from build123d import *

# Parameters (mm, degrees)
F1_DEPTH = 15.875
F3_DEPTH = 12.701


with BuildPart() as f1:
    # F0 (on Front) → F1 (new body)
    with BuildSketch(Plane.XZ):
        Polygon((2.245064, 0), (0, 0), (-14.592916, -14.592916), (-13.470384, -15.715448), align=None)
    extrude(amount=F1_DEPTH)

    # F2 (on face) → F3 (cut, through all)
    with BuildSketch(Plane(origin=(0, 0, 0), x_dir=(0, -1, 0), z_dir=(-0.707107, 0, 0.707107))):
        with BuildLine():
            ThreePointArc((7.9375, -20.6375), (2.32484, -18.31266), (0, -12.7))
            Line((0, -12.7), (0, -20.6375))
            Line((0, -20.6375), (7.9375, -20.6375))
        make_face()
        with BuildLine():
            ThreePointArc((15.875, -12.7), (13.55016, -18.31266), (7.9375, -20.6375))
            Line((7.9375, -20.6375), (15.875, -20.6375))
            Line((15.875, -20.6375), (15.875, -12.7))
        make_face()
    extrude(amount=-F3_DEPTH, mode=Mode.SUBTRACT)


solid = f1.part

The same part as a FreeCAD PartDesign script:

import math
import FreeCAD as App
import Part
import Sketcher
from FreeCAD import Vector
Q = App.Units.Quantity

doc = App.newDocument("Part")
body = doc.addObject("PartDesign::Body", "Body")

sketch1 = body.newObject("Sketcher::SketchObject", "Sketch")
sketch1.AttachmentSupport = (doc.getObject("XZ_Plane"), [""])
sketch1.MapMode = "FlatFace"
sketch1.addGeometry([
    Part.LineSegment(Vector(2.2, 0, 0), Vector(0, 0, 0)),
    Part.LineSegment(Vector(0, 0, 0), Vector(-14.6, -14.6, 0)),
    Part.LineSegment(Vector(-14.6, -14.6, 0), Vector(-13.5, -15.7, 0)),
    Part.LineSegment(Vector(-13.5, -15.7, 0), Vector(2.2, 0, 0)),
], False)
sketch1.addConstraint([
    Sketcher.Constraint("Coincident", 0, 2, 1, 1),
    Sketcher.Constraint("Coincident", 1, 2, 2, 1),
    Sketcher.Constraint("Coincident", 2, 2, 3, 1),
    Sketcher.Constraint("Coincident", 3, 2, 0, 1),
    Sketcher.Constraint("Horizontal", 0),
    Sketcher.Constraint("Coincident", 0, 2, -1, 1),
    Sketcher.Constraint("Perpendicular", 1, 2),
    Sketcher.Constraint("Perpendicular", 2, 3),
    Sketcher.Constraint("Angle", 1, Q("-135 deg")),
    Sketcher.Constraint("Distance", 1, Q("0.8125 in")),
    Sketcher.Constraint("Distance", 2, Q("0.0625 in")),
])
pad1 = body.newObject("PartDesign::Pad", "Pad")
pad1.Profile = sketch1
pad1.Length = Q("0.625 in")

sketch2 = body.newObject("Sketcher::SketchObject", "Sketch001")
sketch2.Placement = App.Placement(Vector(0, 0, 0), App.Rotation(Vector(0, -1, 0), Vector(0.707106781, 0, 0.707106781), Vector(-0.707106781, 0, 0.707106781), "ZXY"))
sketch2.addGeometry([
    Part.ArcOfCircle(Part.Circle(Vector(8, -13, 0), Vector(0, 0, 1), 8), math.radians(-180), math.radians(-90)),
    Part.LineSegment(Vector(0, -13, 0), Vector(0, -21, 0)),
    Part.LineSegment(Vector(0, -21, 0), Vector(8, -21, 0)),
    Part.ArcOfCircle(Part.Circle(Vector(8, -13, 0), Vector(0, 0, 1), 8), math.radians(-90), math.radians(0)),
    Part.LineSegment(Vector(8, -21, 0), Vector(16, -21, 0)),
    Part.LineSegment(Vector(16, -21, 0), Vector(16, -13, 0)),
], False)
sketch2.addConstraint([
    Sketcher.Constraint("Tangent", 0, 1, 1, 1),
    Sketcher.Constraint("Coincident", 1, 2, 2, 1),
    Sketcher.Constraint("Tangent", 2, 2, 0, 2),
    Sketcher.Constraint("Tangent", 3, 1, 4, 1),
    Sketcher.Constraint("Coincident", 4, 2, 5, 1),
    Sketcher.Constraint("Tangent", 5, 2, 3, 2),
    Sketcher.Constraint("Vertical", 1),
    Sketcher.Constraint("Horizontal", 2),
    Sketcher.Constraint("Horizontal", 4),
    Sketcher.Constraint("Vertical", 5),
    Sketcher.Constraint("Coincident", 3, 3, 0, 3),
    Sketcher.Constraint("Equal", 0, 3),
    Sketcher.Constraint("PointOnObject", 0, 1, -2),
    Sketcher.Constraint("Radius", 0, Q("0.3125 in")),
    Sketcher.Constraint("DistanceY", 0, 3, -1, 1, Q("0.5 in")),
])
pocket1 = body.newObject("PartDesign::Pocket", "Pocket")
pocket1.Profile = sketch2
pocket1.Type = "ThroughAll"

doc.recompute()
